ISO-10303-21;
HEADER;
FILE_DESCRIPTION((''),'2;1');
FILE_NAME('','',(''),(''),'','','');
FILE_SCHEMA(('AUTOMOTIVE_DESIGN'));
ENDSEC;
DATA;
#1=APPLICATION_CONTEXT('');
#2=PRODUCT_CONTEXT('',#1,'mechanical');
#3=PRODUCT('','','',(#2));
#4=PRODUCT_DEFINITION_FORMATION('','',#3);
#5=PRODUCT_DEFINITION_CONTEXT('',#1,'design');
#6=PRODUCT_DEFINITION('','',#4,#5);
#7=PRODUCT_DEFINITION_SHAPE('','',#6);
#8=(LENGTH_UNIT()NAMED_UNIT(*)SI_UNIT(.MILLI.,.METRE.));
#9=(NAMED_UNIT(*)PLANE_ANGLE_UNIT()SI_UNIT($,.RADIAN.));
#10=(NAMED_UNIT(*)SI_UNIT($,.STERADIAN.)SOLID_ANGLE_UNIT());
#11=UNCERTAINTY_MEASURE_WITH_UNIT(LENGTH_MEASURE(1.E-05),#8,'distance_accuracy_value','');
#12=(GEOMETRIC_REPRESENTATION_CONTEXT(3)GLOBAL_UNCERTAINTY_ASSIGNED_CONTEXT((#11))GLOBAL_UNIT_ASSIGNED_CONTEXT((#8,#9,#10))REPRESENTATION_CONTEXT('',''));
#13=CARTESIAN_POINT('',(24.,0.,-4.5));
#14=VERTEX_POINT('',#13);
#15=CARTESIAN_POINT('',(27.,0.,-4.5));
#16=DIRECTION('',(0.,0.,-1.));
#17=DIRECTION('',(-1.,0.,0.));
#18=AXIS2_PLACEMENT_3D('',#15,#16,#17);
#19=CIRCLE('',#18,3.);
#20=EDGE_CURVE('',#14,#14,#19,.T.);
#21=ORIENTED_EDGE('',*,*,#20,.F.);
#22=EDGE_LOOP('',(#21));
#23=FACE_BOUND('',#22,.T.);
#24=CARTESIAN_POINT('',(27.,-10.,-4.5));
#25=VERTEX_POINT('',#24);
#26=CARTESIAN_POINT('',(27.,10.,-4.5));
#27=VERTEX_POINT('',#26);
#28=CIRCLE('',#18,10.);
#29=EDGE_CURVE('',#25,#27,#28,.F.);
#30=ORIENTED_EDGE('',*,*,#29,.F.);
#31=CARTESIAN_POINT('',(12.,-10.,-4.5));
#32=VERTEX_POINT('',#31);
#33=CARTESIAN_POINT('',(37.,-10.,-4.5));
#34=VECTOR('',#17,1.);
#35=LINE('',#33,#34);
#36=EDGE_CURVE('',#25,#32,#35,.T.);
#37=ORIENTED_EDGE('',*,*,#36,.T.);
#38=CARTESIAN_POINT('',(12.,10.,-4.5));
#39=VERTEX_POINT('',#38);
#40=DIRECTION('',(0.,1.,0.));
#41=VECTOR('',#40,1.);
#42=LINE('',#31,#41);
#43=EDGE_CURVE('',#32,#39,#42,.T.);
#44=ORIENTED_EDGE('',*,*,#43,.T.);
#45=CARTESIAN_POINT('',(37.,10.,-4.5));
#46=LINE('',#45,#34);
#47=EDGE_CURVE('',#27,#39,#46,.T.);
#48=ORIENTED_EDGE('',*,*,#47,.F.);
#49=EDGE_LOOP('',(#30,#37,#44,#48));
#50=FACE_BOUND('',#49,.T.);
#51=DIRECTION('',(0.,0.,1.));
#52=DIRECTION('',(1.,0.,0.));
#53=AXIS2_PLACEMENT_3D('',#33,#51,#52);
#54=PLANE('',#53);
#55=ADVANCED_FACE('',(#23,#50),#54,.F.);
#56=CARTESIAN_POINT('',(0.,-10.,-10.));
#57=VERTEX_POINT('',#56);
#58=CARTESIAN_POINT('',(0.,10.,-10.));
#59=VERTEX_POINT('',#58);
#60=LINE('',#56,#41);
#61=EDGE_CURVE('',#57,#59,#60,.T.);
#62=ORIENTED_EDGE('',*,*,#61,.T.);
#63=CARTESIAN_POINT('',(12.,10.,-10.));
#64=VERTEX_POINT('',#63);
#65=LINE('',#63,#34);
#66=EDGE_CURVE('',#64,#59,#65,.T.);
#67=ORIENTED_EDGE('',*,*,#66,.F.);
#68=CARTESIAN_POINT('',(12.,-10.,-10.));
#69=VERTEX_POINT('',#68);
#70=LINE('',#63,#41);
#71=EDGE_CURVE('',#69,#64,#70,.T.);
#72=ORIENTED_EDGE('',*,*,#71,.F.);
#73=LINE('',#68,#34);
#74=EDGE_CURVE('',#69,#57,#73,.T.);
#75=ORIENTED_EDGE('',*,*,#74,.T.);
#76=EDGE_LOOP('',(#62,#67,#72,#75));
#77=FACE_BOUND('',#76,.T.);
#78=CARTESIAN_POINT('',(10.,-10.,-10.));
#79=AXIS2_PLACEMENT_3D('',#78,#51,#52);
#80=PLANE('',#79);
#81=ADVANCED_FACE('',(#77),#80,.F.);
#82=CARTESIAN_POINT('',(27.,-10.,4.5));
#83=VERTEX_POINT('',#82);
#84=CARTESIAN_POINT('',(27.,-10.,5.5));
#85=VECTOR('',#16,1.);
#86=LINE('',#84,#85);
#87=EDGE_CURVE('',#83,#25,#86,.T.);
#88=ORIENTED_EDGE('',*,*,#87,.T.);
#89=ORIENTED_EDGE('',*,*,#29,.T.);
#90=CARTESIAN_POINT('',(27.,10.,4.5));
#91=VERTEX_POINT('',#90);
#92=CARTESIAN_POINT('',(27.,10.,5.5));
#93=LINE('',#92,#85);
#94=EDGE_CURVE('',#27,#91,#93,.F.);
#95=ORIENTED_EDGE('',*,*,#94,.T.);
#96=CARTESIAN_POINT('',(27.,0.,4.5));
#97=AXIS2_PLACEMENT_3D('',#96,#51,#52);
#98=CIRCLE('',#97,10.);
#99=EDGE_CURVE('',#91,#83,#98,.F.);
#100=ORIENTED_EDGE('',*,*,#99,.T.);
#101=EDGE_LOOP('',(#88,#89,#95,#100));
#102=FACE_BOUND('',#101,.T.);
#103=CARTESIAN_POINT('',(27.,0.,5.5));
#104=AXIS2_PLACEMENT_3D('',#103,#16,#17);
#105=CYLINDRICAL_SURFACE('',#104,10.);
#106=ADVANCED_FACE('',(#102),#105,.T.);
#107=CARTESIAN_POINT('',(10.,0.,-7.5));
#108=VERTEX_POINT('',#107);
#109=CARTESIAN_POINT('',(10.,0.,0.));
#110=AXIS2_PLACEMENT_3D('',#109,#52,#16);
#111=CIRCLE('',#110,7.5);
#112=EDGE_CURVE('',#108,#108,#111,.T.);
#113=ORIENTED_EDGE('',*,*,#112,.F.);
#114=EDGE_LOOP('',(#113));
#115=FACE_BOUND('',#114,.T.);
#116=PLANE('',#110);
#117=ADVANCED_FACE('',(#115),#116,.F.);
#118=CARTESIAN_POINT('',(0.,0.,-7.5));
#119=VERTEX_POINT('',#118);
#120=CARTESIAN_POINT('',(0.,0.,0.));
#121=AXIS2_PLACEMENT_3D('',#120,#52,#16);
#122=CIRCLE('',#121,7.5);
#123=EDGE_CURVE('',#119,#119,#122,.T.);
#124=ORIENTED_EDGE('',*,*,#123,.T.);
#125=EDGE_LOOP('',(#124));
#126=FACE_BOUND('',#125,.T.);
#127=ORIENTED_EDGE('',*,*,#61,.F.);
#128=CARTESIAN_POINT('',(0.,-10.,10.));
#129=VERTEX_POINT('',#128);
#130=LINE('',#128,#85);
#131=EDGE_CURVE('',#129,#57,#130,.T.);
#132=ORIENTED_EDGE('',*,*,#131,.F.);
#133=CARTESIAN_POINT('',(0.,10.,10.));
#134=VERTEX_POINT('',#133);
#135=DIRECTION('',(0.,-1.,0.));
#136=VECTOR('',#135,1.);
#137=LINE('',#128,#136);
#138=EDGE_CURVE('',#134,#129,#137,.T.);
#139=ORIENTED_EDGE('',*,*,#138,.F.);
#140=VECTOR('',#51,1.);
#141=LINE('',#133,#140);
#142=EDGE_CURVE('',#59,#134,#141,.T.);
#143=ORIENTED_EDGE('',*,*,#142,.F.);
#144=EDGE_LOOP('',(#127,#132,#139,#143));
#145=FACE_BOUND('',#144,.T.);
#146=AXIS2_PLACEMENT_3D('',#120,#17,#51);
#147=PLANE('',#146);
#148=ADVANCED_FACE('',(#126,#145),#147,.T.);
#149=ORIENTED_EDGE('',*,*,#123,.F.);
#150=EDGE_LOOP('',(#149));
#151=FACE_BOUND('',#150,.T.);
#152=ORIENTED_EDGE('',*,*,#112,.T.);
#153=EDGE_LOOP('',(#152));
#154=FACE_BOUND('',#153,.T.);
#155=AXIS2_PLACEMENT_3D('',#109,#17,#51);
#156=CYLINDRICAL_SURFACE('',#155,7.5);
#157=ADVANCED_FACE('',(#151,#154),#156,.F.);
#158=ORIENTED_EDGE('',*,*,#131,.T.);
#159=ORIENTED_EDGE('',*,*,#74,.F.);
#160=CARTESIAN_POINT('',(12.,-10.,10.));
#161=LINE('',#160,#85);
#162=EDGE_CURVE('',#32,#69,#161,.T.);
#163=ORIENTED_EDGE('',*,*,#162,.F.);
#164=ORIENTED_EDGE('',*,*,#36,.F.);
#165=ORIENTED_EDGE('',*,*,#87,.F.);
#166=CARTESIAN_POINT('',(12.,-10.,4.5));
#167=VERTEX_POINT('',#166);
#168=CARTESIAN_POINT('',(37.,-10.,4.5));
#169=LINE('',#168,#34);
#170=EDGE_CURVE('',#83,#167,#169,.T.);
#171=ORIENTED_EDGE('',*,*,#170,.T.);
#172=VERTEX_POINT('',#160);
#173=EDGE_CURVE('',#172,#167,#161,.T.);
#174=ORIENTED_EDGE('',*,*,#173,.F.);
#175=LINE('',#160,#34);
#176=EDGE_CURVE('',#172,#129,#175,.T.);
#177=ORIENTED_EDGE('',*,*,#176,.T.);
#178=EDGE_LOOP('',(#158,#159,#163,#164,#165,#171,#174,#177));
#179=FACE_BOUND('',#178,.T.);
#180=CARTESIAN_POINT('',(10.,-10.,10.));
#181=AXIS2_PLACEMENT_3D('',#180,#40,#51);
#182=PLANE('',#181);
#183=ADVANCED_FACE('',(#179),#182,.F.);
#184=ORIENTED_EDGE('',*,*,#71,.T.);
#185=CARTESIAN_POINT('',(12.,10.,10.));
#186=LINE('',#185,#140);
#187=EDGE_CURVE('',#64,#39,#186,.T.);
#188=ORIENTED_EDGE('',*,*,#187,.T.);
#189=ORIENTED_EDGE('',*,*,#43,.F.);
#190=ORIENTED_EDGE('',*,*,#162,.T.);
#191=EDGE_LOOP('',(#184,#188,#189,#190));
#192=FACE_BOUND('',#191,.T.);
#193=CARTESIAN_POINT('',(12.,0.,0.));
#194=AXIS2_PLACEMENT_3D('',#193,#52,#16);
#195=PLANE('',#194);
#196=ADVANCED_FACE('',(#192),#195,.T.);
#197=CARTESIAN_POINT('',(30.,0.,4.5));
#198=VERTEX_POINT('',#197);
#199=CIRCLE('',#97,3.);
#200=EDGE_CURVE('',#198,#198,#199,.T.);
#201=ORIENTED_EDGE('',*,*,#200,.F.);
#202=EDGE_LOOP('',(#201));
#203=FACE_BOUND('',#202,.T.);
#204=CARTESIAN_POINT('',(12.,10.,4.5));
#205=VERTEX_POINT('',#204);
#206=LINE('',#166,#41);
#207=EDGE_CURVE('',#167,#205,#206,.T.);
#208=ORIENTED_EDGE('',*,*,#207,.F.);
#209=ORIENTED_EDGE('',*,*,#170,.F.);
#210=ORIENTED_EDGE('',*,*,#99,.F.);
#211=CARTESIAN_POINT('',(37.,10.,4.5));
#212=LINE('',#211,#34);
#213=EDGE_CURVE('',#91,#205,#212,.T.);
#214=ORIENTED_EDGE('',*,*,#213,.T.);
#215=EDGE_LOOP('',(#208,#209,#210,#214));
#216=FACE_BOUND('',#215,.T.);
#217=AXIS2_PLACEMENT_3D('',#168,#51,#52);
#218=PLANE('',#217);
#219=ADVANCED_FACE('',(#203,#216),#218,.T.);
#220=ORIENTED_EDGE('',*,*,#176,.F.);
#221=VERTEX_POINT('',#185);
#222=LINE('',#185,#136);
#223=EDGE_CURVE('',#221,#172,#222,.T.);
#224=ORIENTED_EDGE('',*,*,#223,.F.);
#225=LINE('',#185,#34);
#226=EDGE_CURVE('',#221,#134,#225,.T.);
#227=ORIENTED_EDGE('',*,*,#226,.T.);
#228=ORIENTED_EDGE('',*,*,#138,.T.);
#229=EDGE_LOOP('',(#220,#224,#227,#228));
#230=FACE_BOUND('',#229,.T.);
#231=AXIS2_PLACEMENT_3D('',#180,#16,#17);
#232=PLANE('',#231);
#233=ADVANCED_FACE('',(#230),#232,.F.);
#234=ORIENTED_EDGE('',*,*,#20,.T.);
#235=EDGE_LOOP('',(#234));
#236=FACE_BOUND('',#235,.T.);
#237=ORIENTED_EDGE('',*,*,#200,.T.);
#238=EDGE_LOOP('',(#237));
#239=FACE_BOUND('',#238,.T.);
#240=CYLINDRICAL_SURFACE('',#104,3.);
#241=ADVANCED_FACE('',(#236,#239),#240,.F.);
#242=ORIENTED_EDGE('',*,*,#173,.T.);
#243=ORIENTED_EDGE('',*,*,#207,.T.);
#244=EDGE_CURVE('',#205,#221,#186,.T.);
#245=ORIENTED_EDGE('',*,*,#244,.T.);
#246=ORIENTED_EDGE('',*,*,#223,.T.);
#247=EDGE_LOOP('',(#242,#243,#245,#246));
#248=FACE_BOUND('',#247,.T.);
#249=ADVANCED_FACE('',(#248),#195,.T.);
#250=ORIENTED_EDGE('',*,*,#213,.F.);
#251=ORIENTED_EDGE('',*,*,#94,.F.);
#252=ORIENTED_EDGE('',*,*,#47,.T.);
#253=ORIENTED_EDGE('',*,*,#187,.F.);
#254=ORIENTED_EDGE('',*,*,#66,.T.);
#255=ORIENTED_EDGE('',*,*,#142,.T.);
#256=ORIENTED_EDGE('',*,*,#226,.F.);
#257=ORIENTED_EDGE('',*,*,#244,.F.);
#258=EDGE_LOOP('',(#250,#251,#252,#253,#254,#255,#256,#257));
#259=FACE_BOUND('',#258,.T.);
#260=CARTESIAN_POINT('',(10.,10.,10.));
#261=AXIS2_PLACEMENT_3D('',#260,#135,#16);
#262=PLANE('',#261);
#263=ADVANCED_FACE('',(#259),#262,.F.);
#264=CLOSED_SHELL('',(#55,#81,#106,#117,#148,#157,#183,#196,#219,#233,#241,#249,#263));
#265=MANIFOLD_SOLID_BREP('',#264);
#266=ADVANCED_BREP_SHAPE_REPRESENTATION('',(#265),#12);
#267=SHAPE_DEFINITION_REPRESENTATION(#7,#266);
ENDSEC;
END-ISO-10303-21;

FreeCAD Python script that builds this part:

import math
import FreeCAD as App
import Part
import Sketcher

V = App.Vector
Q = App.Units.Quantity

doc = App.newDocument("Part")
body = doc.addObject("PartDesign::Body", "Body")

sketch1 = doc.addObject("Sketcher::SketchObject", "Sketch")
body.addObject(sketch1)
sketch1.AttachmentSupport = (doc.YZ_Plane, [""])
sketch1.MapMode = "FlatFace"
sketch1.addGeometry([
    Part.LineSegment(V(10, 10, 0), V(-10, 10, 0)),
    Part.LineSegment(V(-10, 10, 0), V(-10, -10, 0)),
    Part.LineSegment(V(-10, -10, 0), V(10, -10, 0)),
    Part.LineSegment(V(10, -10, 0), V(10, 10, 0)),
    Part.Circle(V(0, 0, 0), V(0, 0, 1), 8),
], False)
sketch1.addConstraint([
    Sketcher.Constraint("Coincident", 0, 2, 1, 1),
    Sketcher.Constraint("Coincident", 1, 2, 2, 1),
    Sketcher.Constraint("Coincident", 2, 2, 3, 1),
    Sketcher.Constraint("Coincident", 3, 2, 0, 1),
    Sketcher.Constraint("Horizontal", 0),
    Sketcher.Constraint("Vertical", 1),
    Sketcher.Constraint("Horizontal", 2),
    Sketcher.Constraint("Vertical", 3),
    Sketcher.Constraint("Coincident", 4, 3, -1, 1),
    Sketcher.Constraint("Symmetric", 0, 2, 2, 2, -1, 1),
    Sketcher.Constraint("Equal", 2, 1),
    Sketcher.Constraint("Diameter", 4, Q("15 mm")),
    Sketcher.Constraint("DistanceX", 0, 2, 0, 1, Q("20 mm")),
])
pad1 = doc.addObject("PartDesign::Pad", "Pad")
body.addObject(pad1)
pad1.Profile = sketch1
pad1.Length = 10

sketch2 = doc.addObject("Sketcher::SketchObject", "Sketch001")
body.addObject(sketch2)
sketch2.AttachmentSupport = (doc.YZ_Plane, [""])
sketch2.MapMode = "FlatFace"
sketch2.AttachmentOffset = App.Placement(V(0, 0, 10), App.Rotation())
sketch2.addGeometry([
    Part.LineSegment(V(10, 15, 0), V(8, 15, 0)),
    Part.LineSegment(V(8, 15, 0), V(8, 10, 0)),
    Part.LineSegment(V(8, 10, 0), V(10, 10, 0)),
    Part.LineSegment(V(10, 10, 0), V(10, 15, 0)),
    Part.LineSegment(V(-8, 15, 0), V(-10, 15, 0)),
    Part.LineSegment(V(-10, 15, 0), V(-10, 10, 0)),
    Part.LineSegment(V(-10, 10, 0), V(-8, 10, 0)),
    Part.LineSegment(V(-8, 10, 0), V(-8, 15, 0)),
    Part.LineSegment(V(-8, -10, 0), V(-10, -10, 0)),
    Part.LineSegment(V(-10, -10, 0), V(-10, -15, 0)),
    Part.LineSegment(V(-10, -15, 0), V(-8, -15, 0)),
    Part.LineSegment(V(-8, -15, 0), V(-8, -10, 0)),
    Part.LineSegment(V(10, -10, 0), V(8, -10, 0)),
    Part.LineSegment(V(8, -10, 0), V(8, -15, 0)),
    Part.LineSegment(V(8, -15, 0), V(10, -15, 0)),
    Part.LineSegment(V(10, -15, 0), V(10, -10, 0)),
], False)
sketch2.addConstraint([
    Sketcher.Constraint("Coincident", 0, 2, 1, 1),
    Sketcher.Constraint("Coincident", 1, 2, 2, 1),
    Sketcher.Constraint("Coincident", 2, 2, 3, 1),
    Sketcher.Constraint("Coincident", 3, 2, 0, 1),
    Sketcher.Constraint("Coincident", 4, 2, 5, 1),
    Sketcher.Constraint("Coincident", 5, 2, 6, 1),
    Sketcher.Constraint("Coincident", 6, 2, 7, 1),
    Sketcher.Constraint("Coincident", 7, 2, 4, 1),
    Sketcher.Constraint("Coincident", 8, 2, 9, 1),
    Sketcher.Constraint("Coincident", 9, 2, 10, 1),
    Sketcher.Constraint("Coincident", 10, 2, 11, 1),
    Sketcher.Constraint("Coincident", 11, 2, 8, 1),
    Sketcher.Constraint("Coincident", 12, 2, 13, 1),
    Sketcher.Constraint("Coincident", 13, 2, 14, 1),
    Sketcher.Constraint("Coincident", 14, 2, 15, 1),
    Sketcher.Constraint("Coincident", 15, 2, 12, 1),
    Sketcher.Constraint("Horizontal", 0),
    Sketcher.Constraint("Vertical", 1),
    Sketcher.Constraint("Horizontal", 2),
    Sketcher.Constraint("Vertical", 3),
    Sketcher.Constraint("Horizontal", 4),
    Sketcher.Constraint("Vertical", 5),
    Sketcher.Constraint("Horizontal", 6),
    Sketcher.Constraint("Vertical", 7),
    Sketcher.Constraint("Horizontal", 8),
    Sketcher.Constraint("Vertical", 9),
    Sketcher.Constraint("Horizontal", 10),
    Sketcher.Constraint("Vertical", 11),
    Sketcher.Constraint("Horizontal", 12),
    Sketcher.Constraint("Vertical", 13),
    Sketcher.Constraint("Horizontal", 14),
    Sketcher.Constraint("Vertical", 15),
    Sketcher.Constraint("Symmetric", 2, 2, 8, 2, -1, 1),
    Sketcher.Constraint("Symmetric", 0, 2, 10, 2, -1, 1),
    Sketcher.Constraint("Symmetric", 6, 2, 12, 2, -1, 1),
    Sketcher.Constraint("Symmetric", 4, 2, 14, 2, -1, 1),
    Sketcher.Constraint("Symmetric", 3, 2, 4, 2, -2),
    Sketcher.Constraint("Symmetric", 1, 2, 6, 2, -2),
    Sketcher.Constraint("DistanceX", 0, 2, 0, 1, Q("2 mm")),
    Sketcher.Constraint("DistanceY", 1, 2, 1, 1, Q("5 mm")),
    Sketcher.Constraint("DistanceX", -1, 1, 0, 2, Q("8 mm")),
    Sketcher.Constraint("DistanceY", -1, 1, 0, 2, Q("15 mm")),
])
pad2 = doc.addObject("PartDesign::Pad", "Pad001")
body.addObject(pad2)
pad2.Profile = sketch2
pad2.Type = "TwoLengths"
pad2.Length = 0.0001
pad2.Length2 = 10

sketch3 = doc.addObject("Sketcher::SketchObject", "Sketch002")
body.addObject(sketch3)
sketch3.AttachmentSupport = (doc.XZ_Plane, [""])
sketch3.MapMode = "FlatFace"
sketch3.AttachmentOffset = App.Placement(V(0, 0, -10), App.Rotation())
sketch3.addGeometry([
    Part.Circle(V(5, -12.5, 0), V(0, 0, 1), 1.5),
    Part.Circle(V(5, 12.5, 0), V(0, 0, 1), 1.5),
], False)
sketch3.addConstraint([
    Sketcher.Constraint("Equal", 0, 1),
    Sketcher.Constraint("Symmetric", 0, 3, 1, 3, -1),
    Sketcher.Constraint("Diameter", 0, Q("3 mm")),
    Sketcher.Constraint("DistanceY", 0, 3, 1, 3, Q("25 mm")),
    Sketcher.Constraint("DistanceX", -1, 1, 0, 3, Q("5.00005 mm")),
])
pocket1 = doc.addObject("PartDesign::Pocket", "Pocket")
body.addObject(pocket1)
pocket1.Profile = sketch3
pocket1.Type = "ThroughAll"
pocket1.Reversed = True

sketch4 = doc.addObject("Sketcher::SketchObject", "Sketch003")
body.addObject(sketch4)
sketch4.AttachmentSupport = (doc.YZ_Plane, [""])
sketch4.MapMode = "FlatFace"
sketch4.AttachmentOffset = App.Placement(V(0, 0, 10), App.Rotation())
sketch4.addGeometry([
    Part.LineSegment(V(10, 10, 0), V(-10, 10, 0)),
    Part.LineSegment(V(-10, 10, 0), V(-10, -10, 0)),
    Part.LineSegment(V(-10, -10, 0), V(10, -10, 0)),
    Part.LineSegment(V(10, -10, 0), V(10, 10, 0)),
], False)
sketch4.addConstraint([
    Sketcher.Constraint("Coincident", 0, 2, 1, 1),
    Sketcher.Constraint("Coincident", 1, 2, 2, 1),
    Sketcher.Constraint("Coincident", 2, 2, 3, 1),
    Sketcher.Constraint("Coincident", 3, 2, 0, 1),
    Sketcher.Constraint("Horizontal", 0),
    Sketcher.Constraint("Vertical", 1),
    Sketcher.Constraint("Horizontal", 2),
    Sketcher.Constraint("Vertical", 3),
    Sketcher.Constraint("Symmetric", 0, 2, 2, 2, -1, 1),
    Sketcher.Constraint("Equal", 2, 1),
    Sketcher.Constraint("DistanceX", 0, 2, 0, 1, Q("20 mm")),
])
pad3 = doc.addObject("PartDesign::Pad", "Pad002")
body.addObject(pad3)
pad3.Profile = sketch4
pad3.Length = 2

sketch5 = doc.addObject("Sketcher::SketchObject", "Sketch004")
body.addObject(sketch5)
sketch5.AttachmentSupport = (doc.YZ_Plane, [""])
sketch5.MapMode = "FlatFace"
sketch5.AttachmentOffset = App.Placement(V(0, 0, 12), App.Rotation())
sketch5.addGeometry([
    Part.LineSegment(V(10, 4, 0), V(-10, 4, 0)),
    Part.LineSegment(V(-10, 4, 0), V(-10, -4, 0)),
    Part.LineSegment(V(-10, -4, 0), V(10, -4, 0)),
    Part.LineSegment(V(10, -4, 0), V(10, 4, 0)),
], False)
sketch5.addConstraint([
    Sketcher.Constraint("Coincident", 0, 2, 1, 1),
    Sketcher.Constraint("Coincident", 1, 2, 2, 1),
    Sketcher.Constraint("Coincident", 2, 2, 3, 1),
    Sketcher.Constraint("Coincident", 3, 2, 0, 1),
    Sketcher.Constraint("Horizontal", 0),
    Sketcher.Constraint("Vertical", 1),
    Sketcher.Constraint("Horizontal", 2),
    Sketcher.Constraint("Vertical", 3),
    Sketcher.Constraint("Symmetric", 0, 2, 2, 2, -1, 1),
    Sketcher.Constraint("DistanceX", 0, 2, 0, 1, Q("20 mm")),
    Sketcher.Constraint("DistanceY", 1, 2, 1, 1, Q("9 mm")),
])
pad4 = doc.addObject("PartDesign::Pad", "Pad003")
body.addObject(pad4)
pad4.Profile = sketch5
pad4.Length = 25

sketch6 = doc.addObject("Sketcher::SketchObject", "Sketch005")
body.addObject(sketch6)
sketch6.AttachmentSupport = (doc.XY_Plane, [""])
sketch6.MapMode = "FlatFace"
sketch6.AttachmentOffset = App.Placement(V(0, 0, -4.5), App.Rotation())
sketch6.addGeometry(Part.Circle(V(27, 0, 0), V(0, 0, 1), 3), False)
sketch6.addConstraint([
    Sketcher.Constraint("PointOnObject", 0, 3, -1),
    Sketcher.Constraint("Diameter", 0, Q("6 mm")),
    Sketcher.Constraint("DistanceX", -1, 1, 0, 3, Q("27 mm")),
])
pocket2 = doc.addObject("PartDesign::Pocket", "Pocket001")
body.addObject(pocket2)
pocket2.Profile = sketch6
pocket2.Length = 10
pocket2.Reversed = True

sketch7 = doc.addObject("Sketcher::SketchObject", "Sketch006")
body.addObject(sketch7)
sketch7.AttachmentSupport = (doc.XY_Plane, [""])
sketch7.MapMode = "FlatFace"
sketch7.AttachmentOffset = App.Placement(V(0, 0, -4.5), App.Rotation())
sketch7.addGeometry([
    Part.LineSegment(V(37, -10, 0), V(27, -10, 0)),
    Part.ArcOfCircle(Part.Circle(V(27, 0, 0), V(0, 0, 1), 10), math.radians(-90), math.radians(0)),
    Part.LineSegment(V(37, 0, 0), V(37, -10, 0)),
    Part.LineSegment(V(37, 10, 0), V(37, 0, 0)),
    Part.ArcOfCircle(Part.Circle(V(27, 0, 0), V(0, 0, 1), 10), math.radians(0), math.radians(90)),
    Part.LineSegment(V(27, 10, 0), V(37, 10, 0)),
], False)
sketch7.addConstraint([
    Sketcher.Constraint("Tangent", 0, 2, 1, 1),
    Sketcher.Constraint("Tangent", 1, 2, 2, 1),
    Sketcher.Constraint("Coincident", 2, 2, 0, 1),
    Sketcher.Constraint("Tangent", 3, 2, 4, 1),
    Sketcher.Constraint("Tangent", 4, 2, 5, 1),
    Sketcher.Constraint("Coincident", 5, 2, 3, 1),
    Sketcher.Constraint("Horizontal", 0),
    Sketcher.Constraint("Vertical", 2),
    Sketcher.Constraint("Vertical", 3),
    Sketcher.Constraint("Horizontal", 5),
    Sketcher.Constraint("Coincident", 4, 3, 1, 3),
    Sketcher.Constraint("Equal", 1, 4),
    Sketcher.Constraint("PointOnObject", 1, 3, -1),
    Sketcher.Constraint("Radius", 1, Q("10 mm")),
    Sketcher.Constraint("DistanceX", -1, 1, 1, 3, Q("27 mm")),
])
pocket3 = doc.addObject("PartDesign::Pocket", "Pocket002")
body.addObject(pocket3)
pocket3.Profile = sketch7
pocket3.Length = 10
pocket3.Reversed = True

sketch8 = doc.addObject("Sketcher::SketchObject", "Sketch007")
body.addObject(sketch8)
sketch8.AttachmentSupport = (doc.XZ_Plane, [""])
sketch8.MapMode = "FlatFace"
sketch8.AttachmentOffset = App.Placement(V(0, 0, 10), App.Rotation())
sketch8.addGeometry([
    Part.LineSegment(V(0, -10, 0), V(0, -15, 0)),
    Part.LineSegment(V(0, -15, 0), V(10, -15, 0)),
    Part.LineSegment(V(10, -15, 0), V(10, -10, 0)),
    Part.LineSegment(V(10, -10, 0), V(0, -10, 0)),
    Part.LineSegment(V(0, 15, 0), V(0, 10, 0)),
    Part.LineSegment(V(0, 10, 0), V(10, 10, 0)),
    Part.LineSegment(V(10, 10, 0), V(10, 15, 0)),
    Part.LineSegment(V(10, 15, 0), V(0, 15, 0)),
], False)
sketch8.addConstraint([
    Sketcher.Constraint("Coincident", 0, 2, 1, 1),
    Sketcher.Constraint("Coincident", 1, 2, 2, 1),
    Sketcher.Constraint("Coincident", 2, 2, 3, 1),
    Sketcher.Constraint("Coincident", 3, 2, 0, 1),
    Sketcher.Constraint("Coincident", 4, 2, 5, 1),
    Sketcher.Constraint("Coincident", 5, 2, 6, 1),
    Sketcher.Constraint("Coincident", 6, 2, 7, 1),
    Sketcher.Constraint("Coincident", 7, 2, 4, 1),
    Sketcher.Constraint("Vertical", 0),
    Sketcher.Constraint("Horizontal", 1),
    Sketcher.Constraint("Vertical", 2),
    Sketcher.Constraint("Horizontal", 3),
    Sketcher.Constraint("Vertical", 4),
    Sketcher.Constraint("Horizontal", 5),
    Sketcher.Constraint("Vertical", 6),
    Sketcher.Constraint("Horizontal", 7),
    Sketcher.Constraint("Symmetric", 3, 2, 4, 2, -1, 1),
    Sketcher.Constraint("Symmetric", 1, 2, 6, 2, -1),
    Sketcher.Constraint("PointOnObject", 0, 2, -2),
    Sketcher.Constraint("DistanceY", 0, 2, 0, 1, Q("5 mm")),
    Sketcher.Constraint("DistanceY", 0, 2, -1, 1, Q("15 mm")),
    Sketcher.Constraint("DistanceX", 1, 1, 1, 2, Q("10.0001 mm")),
])
pocket4 = doc.addObject("PartDesign::Pocket", "Pocket003")
body.addObject(pocket4)
pocket4.Profile = sketch8
pocket4.Type = "ThroughAll"

doc.recompute()
